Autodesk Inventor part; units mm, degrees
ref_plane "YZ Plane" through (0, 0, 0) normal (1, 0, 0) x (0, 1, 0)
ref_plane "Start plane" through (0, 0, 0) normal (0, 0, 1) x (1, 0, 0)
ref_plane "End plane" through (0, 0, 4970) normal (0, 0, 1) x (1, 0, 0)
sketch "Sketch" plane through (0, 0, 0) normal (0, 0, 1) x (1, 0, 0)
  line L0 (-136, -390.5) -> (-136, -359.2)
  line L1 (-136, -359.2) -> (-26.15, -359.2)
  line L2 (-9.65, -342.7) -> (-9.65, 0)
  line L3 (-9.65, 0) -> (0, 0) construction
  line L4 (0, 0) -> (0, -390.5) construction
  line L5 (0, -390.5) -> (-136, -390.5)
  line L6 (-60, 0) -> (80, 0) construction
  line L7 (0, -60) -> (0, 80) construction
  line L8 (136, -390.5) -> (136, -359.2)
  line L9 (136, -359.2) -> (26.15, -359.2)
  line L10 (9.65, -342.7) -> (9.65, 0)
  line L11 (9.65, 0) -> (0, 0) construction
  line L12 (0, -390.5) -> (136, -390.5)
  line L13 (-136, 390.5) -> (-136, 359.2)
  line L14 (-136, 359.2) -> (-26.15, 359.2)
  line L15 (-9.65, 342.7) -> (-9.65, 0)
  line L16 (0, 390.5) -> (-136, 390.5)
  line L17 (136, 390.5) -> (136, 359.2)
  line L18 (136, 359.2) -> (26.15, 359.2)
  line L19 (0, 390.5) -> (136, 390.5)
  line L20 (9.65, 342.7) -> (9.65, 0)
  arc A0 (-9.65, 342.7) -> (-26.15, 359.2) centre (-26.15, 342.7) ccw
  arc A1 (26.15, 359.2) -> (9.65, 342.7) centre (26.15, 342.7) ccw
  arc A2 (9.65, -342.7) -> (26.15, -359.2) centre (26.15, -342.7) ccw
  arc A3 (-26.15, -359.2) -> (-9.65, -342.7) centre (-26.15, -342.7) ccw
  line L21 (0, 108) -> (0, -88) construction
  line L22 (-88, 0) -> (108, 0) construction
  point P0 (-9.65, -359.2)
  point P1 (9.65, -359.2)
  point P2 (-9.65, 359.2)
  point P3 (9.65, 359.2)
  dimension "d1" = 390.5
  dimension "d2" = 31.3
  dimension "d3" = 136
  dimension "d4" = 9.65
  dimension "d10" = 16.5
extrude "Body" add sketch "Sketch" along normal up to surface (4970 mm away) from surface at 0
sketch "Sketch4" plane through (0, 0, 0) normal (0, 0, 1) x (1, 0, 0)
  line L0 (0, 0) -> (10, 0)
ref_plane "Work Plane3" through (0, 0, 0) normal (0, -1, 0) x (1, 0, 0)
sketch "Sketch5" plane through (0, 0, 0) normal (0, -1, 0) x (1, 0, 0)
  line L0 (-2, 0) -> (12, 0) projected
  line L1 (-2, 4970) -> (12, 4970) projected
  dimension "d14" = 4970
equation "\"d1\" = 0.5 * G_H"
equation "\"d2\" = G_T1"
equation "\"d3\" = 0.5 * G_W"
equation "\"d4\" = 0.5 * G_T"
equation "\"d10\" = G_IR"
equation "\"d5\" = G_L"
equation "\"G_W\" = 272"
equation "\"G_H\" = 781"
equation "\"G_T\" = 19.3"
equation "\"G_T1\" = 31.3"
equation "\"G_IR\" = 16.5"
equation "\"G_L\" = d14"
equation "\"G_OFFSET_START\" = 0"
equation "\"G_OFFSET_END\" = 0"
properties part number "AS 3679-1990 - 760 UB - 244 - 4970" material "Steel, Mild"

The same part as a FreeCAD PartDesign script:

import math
import FreeCAD as App
import Part
import Sketcher
from FreeCAD import Vector
Q = App.Units.Quantity

doc = App.newDocument("Part")
body = doc.addObject("PartDesign::Body", "Body")

sketch1 = doc.addObject("Sketcher::SketchObject", "Sketch")
body.addObject(sketch1)
sketch1.AttachmentSupport = (doc.XY_Plane, [""])
sketch1.MapMode = "FlatFace"
sketch1.addGeometry([
    Part.LineSegment(Vector(-136, -359.2, 0), Vector(-136, -390.5, 0)),
    Part.LineSegment(Vector(-136, -390.5, 0), Vector(136, -390.5, 0)),
    Part.LineSegment(Vector(136, -390.5, 0), Vector(136, -359.2, 0)),
    Part.LineSegment(Vector(136, -359.2, 0), Vector(26.15, -359.2, 0)),
    Part.ArcOfCircle(Part.Circle(Vector(26.15, -342.7, 0), Vector(0, 0, 1), 16.5), math.radians(180), math.radians(270)),
    Part.LineSegment(Vector(9.65, -342.7, 0), Vector(9.65, 342.7, 0)),
    Part.ArcOfCircle(Part.Circle(Vector(26.15, 342.7, 0), Vector(0, 0, 1), 16.5), math.radians(90), math.radians(180)),
    Part.LineSegment(Vector(26.15, 359.2, 0), Vector(136, 359.2, 0)),
    Part.LineSegment(Vector(136, 359.2, 0), Vector(136, 390.5, 0)),
    Part.LineSegment(Vector(136, 390.5, 0), Vector(-136, 390.5, 0)),
    Part.LineSegment(Vector(-136, 390.5, 0), Vector(-136, 359.2, 0)),
    Part.LineSegment(Vector(-136, 359.2, 0), Vector(-26.15, 359.2, 0)),
    Part.ArcOfCircle(Part.Circle(Vector(-26.15, 342.7, 0), Vector(0, 0, 1), 16.5), math.radians(0), math.radians(90)),
    Part.LineSegment(Vector(-9.65, 342.7, 0), Vector(-9.65, -342.7, 0)),
    Part.ArcOfCircle(Part.Circle(Vector(-26.15, -342.7, 0), Vector(0, 0, 1), 16.5), math.radians(-90), math.radians(0)),
    Part.LineSegment(Vector(-26.15, -359.2, 0), Vector(-136, -359.2, 0)),
], False)
sketch1.addConstraint([
    Sketcher.Constraint("Coincident", 0, 2, 1, 1),
    Sketcher.Constraint("Coincident", 1, 2, 2, 1),
    Sketcher.Constraint("Coincident", 2, 2, 3, 1),
    Sketcher.Constraint("Tangent", 3, 2, 4, 2),
    Sketcher.Constraint("Tangent", 4, 1, 5, 1),
    Sketcher.Constraint("Tangent", 5, 2, 6, 2),
    Sketcher.Constraint("Tangent", 6, 1, 7, 1),
    Sketcher.Constraint("Coincident", 7, 2, 8, 1),
    Sketcher.Constraint("Coincident", 8, 2, 9, 1),
    Sketcher.Constraint("Coincident", 9, 2, 10, 1),
    Sketcher.Constraint("Coincident", 10, 2, 11, 1),
    Sketcher.Constraint("Tangent", 11, 2, 12, 2),
    Sketcher.Constraint("Tangent", 12, 1, 13, 1),
    Sketcher.Constraint("Tangent", 13, 2, 14, 2),
    Sketcher.Constraint("Tangent", 14, 1, 15, 1),
    Sketcher.Constraint("Coincident", 15, 2, 0, 1),
    Sketcher.Constraint("Vertical", 0),
    Sketcher.Constraint("Horizontal", 1),
    Sketcher.Constraint("Vertical", 2),
    Sketcher.Constraint("Horizontal", 3),
    Sketcher.Constraint("Vertical", 5),
    Sketcher.Constraint("Horizontal", 7),
    Sketcher.Constraint("Vertical", 8),
    Sketcher.Constraint("Horizontal", 9),
    Sketcher.Constraint("Vertical", 10),
    Sketcher.Constraint("Horizontal", 11),
    Sketcher.Constraint("Vertical", 13),
    Sketcher.Constraint("Horizontal", 15),
    Sketcher.Constraint("Equal", 4, 6),
    Sketcher.Constraint("Equal", 6, 12),
    Sketcher.Constraint("Equal", 12, 14),
    Sketcher.Constraint("Symmetric", 4, 3, 12, 3, -1, 1),
    Sketcher.Constraint("Symmetric", 0, 2, 8, 2, -1, 1),
    Sketcher.Constraint("Symmetric", 7, 2, 10, 2, -2),
    Sketcher.Constraint("Symmetric", 2, 2, 15, 2, -2),
    Sketcher.Constraint("Radius", 4, Q("16.5 mm")),
    Sketcher.Constraint("DistanceY", 0, 2, 0, 1, Q("31.3 mm")),
    Sketcher.Constraint("DistanceX", 0, 2, -1, 1, Q("136 mm")),
    Sketcher.Constraint("DistanceY", 0, 2, -1, 1, Q("390.5 mm")),
    Sketcher.Constraint("DistanceX", -1, 1, 4, 1, Q("9.65 mm")),
])
pad1 = doc.addObject("PartDesign::Pad", "Pad")
body.addObject(pad1)
pad1.Profile = sketch1
pad1.Length = 4970

doc.recompute()
